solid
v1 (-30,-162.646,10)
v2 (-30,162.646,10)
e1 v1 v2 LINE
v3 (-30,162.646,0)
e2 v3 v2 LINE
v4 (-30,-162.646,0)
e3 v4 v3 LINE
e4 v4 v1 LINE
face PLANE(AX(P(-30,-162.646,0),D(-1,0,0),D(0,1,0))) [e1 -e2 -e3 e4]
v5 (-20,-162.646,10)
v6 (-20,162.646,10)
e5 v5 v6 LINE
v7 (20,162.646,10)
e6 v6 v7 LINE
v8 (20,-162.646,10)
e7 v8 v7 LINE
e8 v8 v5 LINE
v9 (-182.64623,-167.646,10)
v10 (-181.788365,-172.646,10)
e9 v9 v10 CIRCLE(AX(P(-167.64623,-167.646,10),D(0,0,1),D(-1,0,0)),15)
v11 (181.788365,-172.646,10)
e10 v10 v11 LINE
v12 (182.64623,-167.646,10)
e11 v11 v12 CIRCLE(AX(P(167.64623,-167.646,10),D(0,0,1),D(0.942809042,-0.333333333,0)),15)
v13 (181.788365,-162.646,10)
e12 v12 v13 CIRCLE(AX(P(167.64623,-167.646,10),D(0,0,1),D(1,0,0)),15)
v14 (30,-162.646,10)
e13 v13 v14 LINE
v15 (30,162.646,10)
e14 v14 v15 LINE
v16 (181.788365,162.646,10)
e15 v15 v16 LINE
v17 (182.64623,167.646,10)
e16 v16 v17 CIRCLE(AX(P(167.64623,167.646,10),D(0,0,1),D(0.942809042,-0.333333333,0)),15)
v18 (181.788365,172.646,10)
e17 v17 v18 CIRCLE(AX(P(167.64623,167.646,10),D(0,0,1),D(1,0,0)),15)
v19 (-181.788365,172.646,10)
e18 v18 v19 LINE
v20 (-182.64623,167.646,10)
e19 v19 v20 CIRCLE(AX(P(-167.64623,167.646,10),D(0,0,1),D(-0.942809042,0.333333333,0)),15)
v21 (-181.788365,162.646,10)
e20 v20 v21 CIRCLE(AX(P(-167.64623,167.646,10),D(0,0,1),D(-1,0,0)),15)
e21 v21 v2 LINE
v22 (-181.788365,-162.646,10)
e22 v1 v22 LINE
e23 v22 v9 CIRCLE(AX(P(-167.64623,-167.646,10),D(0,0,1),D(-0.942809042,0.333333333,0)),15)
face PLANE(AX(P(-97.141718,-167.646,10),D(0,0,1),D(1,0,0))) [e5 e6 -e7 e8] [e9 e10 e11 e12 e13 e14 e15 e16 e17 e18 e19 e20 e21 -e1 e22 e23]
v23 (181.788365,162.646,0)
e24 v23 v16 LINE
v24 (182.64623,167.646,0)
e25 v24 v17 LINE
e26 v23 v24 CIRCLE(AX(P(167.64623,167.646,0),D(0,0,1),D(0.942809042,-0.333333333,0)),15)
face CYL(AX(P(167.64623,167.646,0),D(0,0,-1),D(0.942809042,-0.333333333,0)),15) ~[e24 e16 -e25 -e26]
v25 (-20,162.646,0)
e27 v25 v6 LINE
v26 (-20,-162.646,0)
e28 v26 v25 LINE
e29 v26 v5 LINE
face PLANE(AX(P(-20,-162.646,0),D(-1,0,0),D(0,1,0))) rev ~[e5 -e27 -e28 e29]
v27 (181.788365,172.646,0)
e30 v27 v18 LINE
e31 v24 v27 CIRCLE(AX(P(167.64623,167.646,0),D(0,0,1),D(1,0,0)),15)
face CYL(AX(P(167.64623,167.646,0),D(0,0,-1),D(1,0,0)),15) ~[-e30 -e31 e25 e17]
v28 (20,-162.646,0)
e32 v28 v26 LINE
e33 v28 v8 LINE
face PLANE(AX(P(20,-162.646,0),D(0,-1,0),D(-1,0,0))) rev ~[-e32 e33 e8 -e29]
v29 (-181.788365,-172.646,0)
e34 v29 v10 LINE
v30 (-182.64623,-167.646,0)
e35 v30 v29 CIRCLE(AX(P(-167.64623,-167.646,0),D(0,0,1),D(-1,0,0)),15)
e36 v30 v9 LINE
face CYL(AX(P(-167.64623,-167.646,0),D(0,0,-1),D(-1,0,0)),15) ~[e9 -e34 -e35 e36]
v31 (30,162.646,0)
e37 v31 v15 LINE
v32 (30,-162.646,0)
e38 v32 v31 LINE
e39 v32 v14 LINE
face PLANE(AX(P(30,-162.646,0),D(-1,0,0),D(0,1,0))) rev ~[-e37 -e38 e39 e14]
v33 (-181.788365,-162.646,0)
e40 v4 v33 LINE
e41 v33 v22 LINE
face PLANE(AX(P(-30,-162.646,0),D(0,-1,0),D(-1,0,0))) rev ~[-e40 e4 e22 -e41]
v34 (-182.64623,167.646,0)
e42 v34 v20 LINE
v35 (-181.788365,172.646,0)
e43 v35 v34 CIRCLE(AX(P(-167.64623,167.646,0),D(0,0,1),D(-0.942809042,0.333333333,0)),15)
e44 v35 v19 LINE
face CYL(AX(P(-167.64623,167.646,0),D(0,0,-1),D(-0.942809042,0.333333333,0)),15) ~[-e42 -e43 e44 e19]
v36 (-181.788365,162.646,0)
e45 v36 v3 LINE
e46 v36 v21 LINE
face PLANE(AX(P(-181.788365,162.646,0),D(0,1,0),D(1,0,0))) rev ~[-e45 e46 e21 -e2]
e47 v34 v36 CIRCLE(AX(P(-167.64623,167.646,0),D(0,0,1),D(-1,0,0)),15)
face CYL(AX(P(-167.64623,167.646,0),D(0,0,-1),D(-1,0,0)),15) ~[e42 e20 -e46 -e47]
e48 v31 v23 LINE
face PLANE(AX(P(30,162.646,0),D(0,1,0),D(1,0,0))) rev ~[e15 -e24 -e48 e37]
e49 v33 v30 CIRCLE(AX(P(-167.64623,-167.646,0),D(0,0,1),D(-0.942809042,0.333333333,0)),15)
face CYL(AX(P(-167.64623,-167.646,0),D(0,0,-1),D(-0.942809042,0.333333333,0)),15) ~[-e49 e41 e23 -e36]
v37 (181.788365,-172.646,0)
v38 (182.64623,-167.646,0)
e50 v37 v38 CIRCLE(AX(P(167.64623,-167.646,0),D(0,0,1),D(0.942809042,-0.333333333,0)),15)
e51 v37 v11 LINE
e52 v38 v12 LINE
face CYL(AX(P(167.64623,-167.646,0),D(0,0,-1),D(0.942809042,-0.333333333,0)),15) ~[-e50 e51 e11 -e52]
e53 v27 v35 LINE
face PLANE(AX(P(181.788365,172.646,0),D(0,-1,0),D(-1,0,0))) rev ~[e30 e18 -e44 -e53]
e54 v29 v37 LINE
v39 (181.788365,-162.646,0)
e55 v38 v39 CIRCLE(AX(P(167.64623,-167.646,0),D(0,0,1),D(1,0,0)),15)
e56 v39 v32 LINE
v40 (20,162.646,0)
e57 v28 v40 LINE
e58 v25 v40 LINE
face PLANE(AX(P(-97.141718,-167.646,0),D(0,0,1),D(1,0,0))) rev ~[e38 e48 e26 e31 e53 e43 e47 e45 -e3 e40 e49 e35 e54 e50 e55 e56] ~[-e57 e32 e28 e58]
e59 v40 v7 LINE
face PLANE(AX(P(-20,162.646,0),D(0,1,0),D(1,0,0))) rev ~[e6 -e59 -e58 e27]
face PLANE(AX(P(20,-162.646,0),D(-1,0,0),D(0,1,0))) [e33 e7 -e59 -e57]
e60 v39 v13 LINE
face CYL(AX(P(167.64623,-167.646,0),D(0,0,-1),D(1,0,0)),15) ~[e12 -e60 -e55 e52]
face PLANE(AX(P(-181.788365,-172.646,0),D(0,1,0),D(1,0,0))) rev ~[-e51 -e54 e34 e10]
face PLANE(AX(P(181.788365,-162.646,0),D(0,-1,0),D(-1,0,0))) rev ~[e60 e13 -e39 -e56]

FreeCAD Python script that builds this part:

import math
import FreeCAD as App
import Part
import Sketcher
Q = App.Units.Quantity

doc = App.newDocument("Part")
body = doc.addObject("PartDesign::Body", "Body")

sketch1 = doc.addObject("Sketcher::SketchObject", "Sketch")
body.addObject(sketch1)
sketch1.AttachmentSupport = (doc.XY_Plane, [""])
sketch1.MapMode = "FlatFace"
sketch1.addGeometry(Part.ArcOfCircle(Part.Circle(App.Vector(168, -168, 0), App.Vector(0, 0, 1), 15), math.radians(-19.47), math.radians(0)), False)
sketch1.addGeometry(Part.ArcOfCircle(Part.Circle(App.Vector(168, -168, 0), App.Vector(0, 0, 1), 15), math.radians(0), math.radians(19.47)), False)
sketch1.addGeometry(Part.LineSegment(App.Vector(182, -163, 0), App.Vector(30, -163, 0)), False)
sketch1.addGeometry(Part.LineSegment(App.Vector(30, -163, 0), App.Vector(30, 163, 0)), False)
sketch1.addGeometry(Part.LineSegment(App.Vector(30, 163, 0), App.Vector(182, 163, 0)), False)
sketch1.addGeometry(Part.ArcOfCircle(Part.Circle(App.Vector(168, 168, 0), App.Vector(0, 0, 1), 15), math.radians(-19.47), math.radians(0)), False)
sketch1.addGeometry(Part.ArcOfCircle(Part.Circle(App.Vector(168, 168, 0), App.Vector(0, 0, 1), 15), math.radians(0), math.radians(19.47)), False)
sketch1.addGeometry(Part.LineSegment(App.Vector(182, 173, 0), App.Vector(-182, 173, 0)), False)
sketch1.addGeometry(Part.ArcOfCircle(Part.Circle(App.Vector(-168, 168, 0), App.Vector(0, 0, 1), 15), math.radians(160.53), math.radians(180)), False)
sketch1.addGeometry(Part.ArcOfCircle(Part.Circle(App.Vector(-168, 168, 0), App.Vector(0, 0, 1), 15), math.radians(180), math.radians(199.47)), False)
sketch1.addGeometry(Part.LineSegment(App.Vector(-182, 163, 0), App.Vector(-30, 163, 0)), False)
sketch1.addGeometry(Part.LineSegment(App.Vector(-30, 163, 0), App.Vector(-30, -163, 0)), False)
sketch1.addGeometry(Part.LineSegment(App.Vector(-30, -163, 0), App.Vector(-182, -163, 0)), False)
sketch1.addGeometry(Part.ArcOfCircle(Part.Circle(App.Vector(-168, -168, 0), App.Vector(0, 0, 1), 15), math.radians(160.53), math.radians(180)), False)
sketch1.addGeometry(Part.ArcOfCircle(Part.Circle(App.Vector(-168, -168, 0), App.Vector(0, 0, 1), 15), math.radians(180), math.radians(199.47)), False)
sketch1.addGeometry(Part.LineSegment(App.Vector(-182, -173, 0), App.Vector(182, -173, 0)), False)
sketch1.addGeometry(Part.LineSegment(App.Vector(20, 163, 0), App.Vector(20, -163, 0)), False)
sketch1.addGeometry(Part.LineSegment(App.Vector(20, -163, 0), App.Vector(-20, -163, 0)), False)
sketch1.addGeometry(Part.LineSegment(App.Vector(-20, -163, 0), App.Vector(-20, 163, 0)), False)
sketch1.addGeometry(Part.LineSegment(App.Vector(-20, 163, 0), App.Vector(20, 163, 0)), False)
sketch1.addConstraint(Sketcher.Constraint("Tangent", 0, 2, 1, 1))
sketch1.addConstraint(Sketcher.Constraint("Coincident", 1, 2, 2, 1))
sketch1.addConstraint(Sketcher.Constraint("Coincident", 2, 2, 3, 1))
sketch1.addConstraint(Sketcher.Constraint("Coincident", 3, 2, 4, 1))
sketch1.addConstraint(Sketcher.Constraint("Coincident", 4, 2, 5, 1))
sketch1.addConstraint(Sketcher.Constraint("Tangent", 5, 2, 6, 1))
sketch1.addConstraint(Sketcher.Constraint("Coincident", 6, 2, 7, 1))
sketch1.addConstraint(Sketcher.Constraint("Coincident", 7, 2, 8, 1))
sketch1.addConstraint(Sketcher.Constraint("Tangent", 8, 2, 9, 1))
sketch1.addConstraint(Sketcher.Constraint("Coincident", 9, 2, 10, 1))
sketch1.addConstraint(Sketcher.Constraint("Coincident", 10, 2, 11, 1))
sketch1.addConstraint(Sketcher.Constraint("Coincident", 11, 2, 12, 1))
sketch1.addConstraint(Sketcher.Constraint("Coincident", 12, 2, 13, 1))
sketch1.addConstraint(Sketcher.Constraint("Tangent", 13, 2, 14, 1))
sketch1.addConstraint(Sketcher.Constraint("Coincident", 14, 2, 15, 1))
sketch1.addConstraint(Sketcher.Constraint("Coincident", 15, 2, 0, 1))
sketch1.addConstraint(Sketcher.Constraint("Coincident", 16, 2, 17, 1))
sketch1.addConstraint(Sketcher.Constraint("Coincident", 17, 2, 18, 1))
sketch1.addConstraint(Sketcher.Constraint("Coincident", 18, 2, 19, 1))
sketch1.addConstraint(Sketcher.Constraint("Coincident", 19, 2, 16, 1))
sketch1.addConstraint(Sketcher.Constraint("Horizontal", 2))
sketch1.addConstraint(Sketcher.Constraint("Vertical", 3))
sketch1.addConstraint(Sketcher.Constraint("Horizontal", 4))
sketch1.addConstraint(Sketcher.Constraint("Horizontal", 7))
sketch1.addConstraint(Sketcher.Constraint("Horizontal", 10))
sketch1.addConstraint(Sketcher.Constraint("Vertical", 11))
sketch1.addConstraint(Sketcher.Constraint("Horizontal", 12))
sketch1.addConstraint(Sketcher.Constraint("Horizontal", 15))
sketch1.addConstraint(Sketcher.Constraint("Vertical", 16))
sketch1.addConstraint(Sketcher.Constraint("Horizontal", 17))
sketch1.addConstraint(Sketcher.Constraint("Vertical", 18))
sketch1.addConstraint(Sketcher.Constraint("Horizontal", 19))
sketch1.addConstraint(Sketcher.Constraint("Equal", 0, 1))
sketch1.addConstraint(Sketcher.Constraint("Equal", 1, 5))
sketch1.addConstraint(Sketcher.Constraint("Equal", 5, 6))
sketch1.addConstraint(Sketcher.Constraint("Equal", 6, 8))
sketch1.addConstraint(Sketcher.Constraint("Equal", 8, 9))
sketch1.addConstraint(Sketcher.Constraint("Equal", 9, 13))
sketch1.addConstraint(Sketcher.Constraint("Equal", 13, 14))
sketch1.addConstraint(Sketcher.Constraint("Symmetric", 0, 3, 8, 3, -1, 1))
sketch1.addConstraint(Sketcher.Constraint("Symmetric", 5, 3, 13, 3, -1, 1))
sketch1.addConstraint(Sketcher.Constraint("Symmetric", 2, 2, 10, 2, -1, 1))
sketch1.addConstraint(Sketcher.Constraint("Symmetric", 16, 2, 18, 2, -1, 1))
sketch1.addConstraint(Sketcher.Constraint("Symmetric", 5, 3, 8, 3, -2))
sketch1.addConstraint(Sketcher.Constraint("Horizontal", 14, 3, 0, 2))
sketch1.addConstraint(Sketcher.Constraint("Horizontal", 9, 3, 5, 2))
sketch1.addConstraint(Sketcher.Constraint("Horizontal", 5, 2, 8, 2))
sketch1.addConstraint(Sketcher.Constraint("Horizontal", 4, 2, 9, 2))
sketch1.addConstraint(Sketcher.Constraint("Horizontal", 2, 2, 11, 2))
sketch1.addConstraint(Sketcher.Constraint("Horizontal", 0, 2, 13, 2))
sketch1.addConstraint(Sketcher.Constraint("Horizontal", 12, 2, 16, 2))
sketch1.addConstraint(Sketcher.Constraint("Vertical", 4, 2, 6, 2))
sketch1.addConstraint(Sketcher.Constraint("Vertical", 12, 2, 14, 2))
sketch1.addConstraint(Sketcher.Constraint("Radius", 0, Q("15 mm")))
sketch1.addConstraint(Sketcher.Constraint("DistanceX", 17, 2, 17, 1, Q("40 mm")))
sketch1.addConstraint(Sketcher.Constraint("DistanceX", -1, 1, 2, 2, Q("30 mm")))
sketch1.addConstraint(Sketcher.Constraint("DistanceY", 0, 2, 1, 2, Q("5 mm")))
sketch1.addConstraint(Sketcher.Constraint("DistanceY", 3, 1, 3, 2, Q("325.292 mm")))
sketch1.addConstraint(Sketcher.Constraint("DistanceX", 7, 2, 7, 1, Q("363.576731 mm")))
pad1 = doc.addObject("PartDesign::Pad", "Pad")
body.addObject(pad1)
pad1.Profile = sketch1
pad1.Length = 10

doc.recompute()
